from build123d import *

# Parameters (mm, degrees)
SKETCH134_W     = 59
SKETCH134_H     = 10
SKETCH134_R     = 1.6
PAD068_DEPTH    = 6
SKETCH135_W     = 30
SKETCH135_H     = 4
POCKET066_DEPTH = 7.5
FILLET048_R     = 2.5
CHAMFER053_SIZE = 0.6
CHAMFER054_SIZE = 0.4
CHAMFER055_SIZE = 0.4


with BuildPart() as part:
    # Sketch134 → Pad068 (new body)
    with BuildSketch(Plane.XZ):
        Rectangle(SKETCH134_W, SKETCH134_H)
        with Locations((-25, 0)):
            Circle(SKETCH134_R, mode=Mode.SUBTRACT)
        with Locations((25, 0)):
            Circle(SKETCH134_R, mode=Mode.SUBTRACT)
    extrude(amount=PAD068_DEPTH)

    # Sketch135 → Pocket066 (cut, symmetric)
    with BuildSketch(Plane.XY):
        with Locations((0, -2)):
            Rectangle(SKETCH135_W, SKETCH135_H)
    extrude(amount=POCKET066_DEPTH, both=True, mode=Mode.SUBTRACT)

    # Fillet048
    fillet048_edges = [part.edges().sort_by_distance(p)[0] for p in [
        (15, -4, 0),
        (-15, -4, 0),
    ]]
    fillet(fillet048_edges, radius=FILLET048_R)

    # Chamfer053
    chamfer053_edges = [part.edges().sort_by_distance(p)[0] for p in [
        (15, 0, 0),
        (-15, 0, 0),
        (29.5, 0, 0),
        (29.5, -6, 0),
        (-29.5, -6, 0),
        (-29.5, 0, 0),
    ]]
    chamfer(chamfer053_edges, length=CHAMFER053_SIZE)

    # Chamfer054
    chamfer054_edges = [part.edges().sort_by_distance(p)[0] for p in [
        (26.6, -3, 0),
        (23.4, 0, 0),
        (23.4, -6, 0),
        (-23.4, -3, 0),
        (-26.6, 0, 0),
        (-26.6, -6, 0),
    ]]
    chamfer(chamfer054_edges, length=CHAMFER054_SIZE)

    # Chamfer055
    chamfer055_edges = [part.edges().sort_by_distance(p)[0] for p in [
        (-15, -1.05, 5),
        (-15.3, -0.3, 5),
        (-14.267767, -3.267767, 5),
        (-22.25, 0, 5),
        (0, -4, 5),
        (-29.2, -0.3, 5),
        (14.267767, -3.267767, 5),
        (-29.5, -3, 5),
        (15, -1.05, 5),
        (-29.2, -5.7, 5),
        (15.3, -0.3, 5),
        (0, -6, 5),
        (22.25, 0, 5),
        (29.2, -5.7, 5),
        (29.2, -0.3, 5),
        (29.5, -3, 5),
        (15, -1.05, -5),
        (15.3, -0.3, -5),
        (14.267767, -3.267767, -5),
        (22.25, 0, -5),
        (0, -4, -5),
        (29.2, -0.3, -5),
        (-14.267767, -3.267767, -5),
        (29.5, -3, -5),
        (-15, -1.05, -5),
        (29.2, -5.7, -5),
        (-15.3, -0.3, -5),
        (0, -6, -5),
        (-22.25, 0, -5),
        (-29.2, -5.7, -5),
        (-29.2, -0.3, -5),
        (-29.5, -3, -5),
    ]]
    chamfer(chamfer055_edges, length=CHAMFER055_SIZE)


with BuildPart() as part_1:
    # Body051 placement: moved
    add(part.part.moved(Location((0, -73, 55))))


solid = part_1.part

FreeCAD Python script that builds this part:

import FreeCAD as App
import Part
import Sketcher

V = App.Vector
Q = App.Units.Quantity


def edges_at(feature, points):
    """Names of the edges that pass closest to the given points."""
    edges = feature.Shape.Edges
    near = lambda p: min(range(len(edges)), key=lambda i: edges[i].distToShape(Part.Vertex(*p))[0])
    return sorted({f"Edge{near(p) + 1}" for p in points})

doc = App.newDocument("Part")
body = doc.addObject("PartDesign::Body", "Body")

# Sketch on XZ plane
sketch1 = doc.addObject("Sketcher::SketchObject", "Sketch")
body.addObject(sketch1)
sketch1.AttachmentSupport = (doc.XZ_Plane, [""])
sketch1.MapMode = "FlatFace"
sketch1.addGeometry(Part.LineSegment(V(-29.5, 5, 0), V(-29.5, -5, 0)), False)
sketch1.addGeometry(Part.LineSegment(V(-29.5, -5, 0), V(29.5, -5, 0)), False)
sketch1.addGeometry(Part.LineSegment(V(29.5, -5, 0), V(29.5, 5, 0)), False)
sketch1.addGeometry(Part.LineSegment(V(29.5, 5, 0), V(-29.5, 5, 0)), False)
sketch1.addGeometry(Part.Circle(V(-25, 0, 0), V(0, 0, 1), 1.6), False)
sketch1.addGeometry(Part.Circle(V(25, 0, 0), V(0, 0, 1), 1.6), False)
sketch1.addConstraint(Sketcher.Constraint("Coincident", 0, 2, 1, 1))
sketch1.addConstraint(Sketcher.Constraint("Coincident", 1, 2, 2, 1))
sketch1.addConstraint(Sketcher.Constraint("Coincident", 2, 2, 3, 1))
sketch1.addConstraint(Sketcher.Constraint("Coincident", 3, 2, 0, 1))
sketch1.addConstraint(Sketcher.Constraint("Vertical", 0))
sketch1.addConstraint(Sketcher.Constraint("Horizontal", 1))
sketch1.addConstraint(Sketcher.Constraint("Vertical", 2))
sketch1.addConstraint(Sketcher.Constraint("Horizontal", 3))
sketch1.addConstraint(Sketcher.Constraint("Equal", 4, 5))
sketch1.addConstraint(Sketcher.Constraint("Symmetric", 4, 3, 5, 3, -1, 1))
sketch1.addConstraint(Sketcher.Constraint("Symmetric", 0, 2, 2, 2, -1, 1))
sketch1.addConstraint(Sketcher.Constraint("PointOnObject", 4, 3, -1))
sketch1.addConstraint(Sketcher.Constraint("Diameter", 4, Q("3.2 mm")))
sketch1.addConstraint(Sketcher.Constraint("DistanceX", 1, 1, 1, 2, Q("59 mm")))
sketch1.addConstraint(Sketcher.Constraint("DistanceY", 0, 2, 0, 1, Q("10 mm")))
sketch1.addConstraint(Sketcher.Constraint("DistanceX", 4, 3, -1, 1, Q("25 mm")))
pad1 = doc.addObject("PartDesign::Pad", "Pad")
body.addObject(pad1)
pad1.Profile = sketch1
pad1.Length = 6

# Sketch on XY plane
sketch2 = doc.addObject("Sketcher::SketchObject", "Sketch001")
body.addObject(sketch2)
sketch2.AttachmentSupport = (doc.XY_Plane, [""])
sketch2.MapMode = "FlatFace"
sketch2.addGeometry(Part.LineSegment(V(-15, 0, 0), V(-15, -4, 0)), False)
sketch2.addGeometry(Part.LineSegment(V(-15, -4, 0), V(15, -4, 0)), False)
sketch2.addGeometry(Part.LineSegment(V(15, -4, 0), V(15, 0, 0)), False)
sketch2.addGeometry(Part.LineSegment(V(15, 0, 0), V(-15, 0, 0)), False)
sketch2.addConstraint(Sketcher.Constraint("Coincident", 0, 2, 1, 1))
sketch2.addConstraint(Sketcher.Constraint("Coincident", 1, 2, 2, 1))
sketch2.addConstraint(Sketcher.Constraint("Coincident", 2, 2, 3, 1))
sketch2.addConstraint(Sketcher.Constraint("Coincident", 3, 2, 0, 1))
sketch2.addConstraint(Sketcher.Constraint("Vertical", 0))
sketch2.addConstraint(Sketcher.Constraint("Horizontal", 1))
sketch2.addConstraint(Sketcher.Constraint("Vertical", 2))
sketch2.addConstraint(Sketcher.Constraint("Horizontal", 3))
sketch2.addConstraint(Sketcher.Constraint("Symmetric", 2, 2, 3, 2, -1, 1))
sketch2.addConstraint(Sketcher.Constraint("DistanceX", 1, 1, 1, 2, Q("30 mm")))
sketch2.addConstraint(Sketcher.Constraint("DistanceY", 0, 2, 0, 1, Q("4 mm")))
pocket1 = doc.addObject("PartDesign::Pocket", "Pocket")
body.addObject(pocket1)
pocket1.Profile = sketch2
pocket1.Length = 15
pocket1.Midplane = True
doc.recompute()

fillet = doc.addObject("PartDesign::Fillet", "Fillet")
body.addObject(fillet)
fillet.Base = (pocket1, edges_at(pocket1, [(15, -4, 0), (-15, -4, 0)]))
fillet.Radius = 2.5
doc.recompute()

chamfer = doc.addObject("PartDesign::Chamfer", "Chamfer")
body.addObject(chamfer)
chamfer.Base = (fillet, edges_at(fillet, [
    (15, 0, 0),
    (-15, 0, 0),
    (29.5, 0, 0),
    (29.5, -6, 0),
    (-29.5, -6, 0),
    (-29.5, 0, 0),
]))
chamfer.Size = 0.6
doc.recompute()

chamfer2 = doc.addObject("PartDesign::Chamfer", "Chamfer001")
body.addObject(chamfer2)
chamfer2.Base = (chamfer, edges_at(chamfer, [
    (26.6, -3, 0),
    (23.4, 0, 0),
    (23.4, -6, 0),
    (-23.4, -3, 0),
    (-26.6, 0, 0),
    (-26.6, -6, 0),
]))
chamfer2.Size = 0.4
doc.recompute()

chamfer3 = doc.addObject("PartDesign::Chamfer", "Chamfer002")
body.addObject(chamfer3)
chamfer3.Base = (chamfer2, edges_at(chamfer2, [
    (-15, -1.05, 5),
    (-15.3, -0.3, 5),
    (-14.268, -3.268, 5),
    (-22.25, 0, 5),
    (0, -4, 5),
    (-29.2, -0.3, 5),
    (14.268, -3.268, 5),
    (-29.5, -3, 5),
    (15, -1.05, 5),
    (-29.2, -5.7, 5),
    (15.3, -0.3, 5),
    (0, -6, 5),
    (22.25, 0, 5),
    (29.2, -5.7, 5),
    (29.2, -0.3, 5),
    (29.5, -3, 5),
    (15, -1.05, -5),
    (15.3, -0.3, -5),
    (14.268, -3.268, -5),
    (22.25, 0, -5),
    (0, -4, -5),
    (29.2, -0.3, -5),
    (-14.268, -3.268, -5),
    (29.5, -3, -5),
    (-15, -1.05, -5),
    (29.2, -5.7, -5),
    (-15.3, -0.3, -5),
    (0, -6, -5),
    (-22.25, 0, -5),
    (-29.2, -5.7, -5),
    (-29.2, -0.3, -5),
    (-29.5, -3, -5),
]))
chamfer3.Size = 0.4
body2 = doc.addObject("PartDesign::Body", "Body001")
doc.recompute()

body.Placement = App.Placement(V(0, -73, 55), App.Rotation(V(0, 0, 1), 0))
boolean = doc.addObject("PartDesign::Boolean", "Boolean")
body2.addObject(boolean)
boolean.Type = "Fuse"
boolean.addObjects([body])

doc.recompute()
